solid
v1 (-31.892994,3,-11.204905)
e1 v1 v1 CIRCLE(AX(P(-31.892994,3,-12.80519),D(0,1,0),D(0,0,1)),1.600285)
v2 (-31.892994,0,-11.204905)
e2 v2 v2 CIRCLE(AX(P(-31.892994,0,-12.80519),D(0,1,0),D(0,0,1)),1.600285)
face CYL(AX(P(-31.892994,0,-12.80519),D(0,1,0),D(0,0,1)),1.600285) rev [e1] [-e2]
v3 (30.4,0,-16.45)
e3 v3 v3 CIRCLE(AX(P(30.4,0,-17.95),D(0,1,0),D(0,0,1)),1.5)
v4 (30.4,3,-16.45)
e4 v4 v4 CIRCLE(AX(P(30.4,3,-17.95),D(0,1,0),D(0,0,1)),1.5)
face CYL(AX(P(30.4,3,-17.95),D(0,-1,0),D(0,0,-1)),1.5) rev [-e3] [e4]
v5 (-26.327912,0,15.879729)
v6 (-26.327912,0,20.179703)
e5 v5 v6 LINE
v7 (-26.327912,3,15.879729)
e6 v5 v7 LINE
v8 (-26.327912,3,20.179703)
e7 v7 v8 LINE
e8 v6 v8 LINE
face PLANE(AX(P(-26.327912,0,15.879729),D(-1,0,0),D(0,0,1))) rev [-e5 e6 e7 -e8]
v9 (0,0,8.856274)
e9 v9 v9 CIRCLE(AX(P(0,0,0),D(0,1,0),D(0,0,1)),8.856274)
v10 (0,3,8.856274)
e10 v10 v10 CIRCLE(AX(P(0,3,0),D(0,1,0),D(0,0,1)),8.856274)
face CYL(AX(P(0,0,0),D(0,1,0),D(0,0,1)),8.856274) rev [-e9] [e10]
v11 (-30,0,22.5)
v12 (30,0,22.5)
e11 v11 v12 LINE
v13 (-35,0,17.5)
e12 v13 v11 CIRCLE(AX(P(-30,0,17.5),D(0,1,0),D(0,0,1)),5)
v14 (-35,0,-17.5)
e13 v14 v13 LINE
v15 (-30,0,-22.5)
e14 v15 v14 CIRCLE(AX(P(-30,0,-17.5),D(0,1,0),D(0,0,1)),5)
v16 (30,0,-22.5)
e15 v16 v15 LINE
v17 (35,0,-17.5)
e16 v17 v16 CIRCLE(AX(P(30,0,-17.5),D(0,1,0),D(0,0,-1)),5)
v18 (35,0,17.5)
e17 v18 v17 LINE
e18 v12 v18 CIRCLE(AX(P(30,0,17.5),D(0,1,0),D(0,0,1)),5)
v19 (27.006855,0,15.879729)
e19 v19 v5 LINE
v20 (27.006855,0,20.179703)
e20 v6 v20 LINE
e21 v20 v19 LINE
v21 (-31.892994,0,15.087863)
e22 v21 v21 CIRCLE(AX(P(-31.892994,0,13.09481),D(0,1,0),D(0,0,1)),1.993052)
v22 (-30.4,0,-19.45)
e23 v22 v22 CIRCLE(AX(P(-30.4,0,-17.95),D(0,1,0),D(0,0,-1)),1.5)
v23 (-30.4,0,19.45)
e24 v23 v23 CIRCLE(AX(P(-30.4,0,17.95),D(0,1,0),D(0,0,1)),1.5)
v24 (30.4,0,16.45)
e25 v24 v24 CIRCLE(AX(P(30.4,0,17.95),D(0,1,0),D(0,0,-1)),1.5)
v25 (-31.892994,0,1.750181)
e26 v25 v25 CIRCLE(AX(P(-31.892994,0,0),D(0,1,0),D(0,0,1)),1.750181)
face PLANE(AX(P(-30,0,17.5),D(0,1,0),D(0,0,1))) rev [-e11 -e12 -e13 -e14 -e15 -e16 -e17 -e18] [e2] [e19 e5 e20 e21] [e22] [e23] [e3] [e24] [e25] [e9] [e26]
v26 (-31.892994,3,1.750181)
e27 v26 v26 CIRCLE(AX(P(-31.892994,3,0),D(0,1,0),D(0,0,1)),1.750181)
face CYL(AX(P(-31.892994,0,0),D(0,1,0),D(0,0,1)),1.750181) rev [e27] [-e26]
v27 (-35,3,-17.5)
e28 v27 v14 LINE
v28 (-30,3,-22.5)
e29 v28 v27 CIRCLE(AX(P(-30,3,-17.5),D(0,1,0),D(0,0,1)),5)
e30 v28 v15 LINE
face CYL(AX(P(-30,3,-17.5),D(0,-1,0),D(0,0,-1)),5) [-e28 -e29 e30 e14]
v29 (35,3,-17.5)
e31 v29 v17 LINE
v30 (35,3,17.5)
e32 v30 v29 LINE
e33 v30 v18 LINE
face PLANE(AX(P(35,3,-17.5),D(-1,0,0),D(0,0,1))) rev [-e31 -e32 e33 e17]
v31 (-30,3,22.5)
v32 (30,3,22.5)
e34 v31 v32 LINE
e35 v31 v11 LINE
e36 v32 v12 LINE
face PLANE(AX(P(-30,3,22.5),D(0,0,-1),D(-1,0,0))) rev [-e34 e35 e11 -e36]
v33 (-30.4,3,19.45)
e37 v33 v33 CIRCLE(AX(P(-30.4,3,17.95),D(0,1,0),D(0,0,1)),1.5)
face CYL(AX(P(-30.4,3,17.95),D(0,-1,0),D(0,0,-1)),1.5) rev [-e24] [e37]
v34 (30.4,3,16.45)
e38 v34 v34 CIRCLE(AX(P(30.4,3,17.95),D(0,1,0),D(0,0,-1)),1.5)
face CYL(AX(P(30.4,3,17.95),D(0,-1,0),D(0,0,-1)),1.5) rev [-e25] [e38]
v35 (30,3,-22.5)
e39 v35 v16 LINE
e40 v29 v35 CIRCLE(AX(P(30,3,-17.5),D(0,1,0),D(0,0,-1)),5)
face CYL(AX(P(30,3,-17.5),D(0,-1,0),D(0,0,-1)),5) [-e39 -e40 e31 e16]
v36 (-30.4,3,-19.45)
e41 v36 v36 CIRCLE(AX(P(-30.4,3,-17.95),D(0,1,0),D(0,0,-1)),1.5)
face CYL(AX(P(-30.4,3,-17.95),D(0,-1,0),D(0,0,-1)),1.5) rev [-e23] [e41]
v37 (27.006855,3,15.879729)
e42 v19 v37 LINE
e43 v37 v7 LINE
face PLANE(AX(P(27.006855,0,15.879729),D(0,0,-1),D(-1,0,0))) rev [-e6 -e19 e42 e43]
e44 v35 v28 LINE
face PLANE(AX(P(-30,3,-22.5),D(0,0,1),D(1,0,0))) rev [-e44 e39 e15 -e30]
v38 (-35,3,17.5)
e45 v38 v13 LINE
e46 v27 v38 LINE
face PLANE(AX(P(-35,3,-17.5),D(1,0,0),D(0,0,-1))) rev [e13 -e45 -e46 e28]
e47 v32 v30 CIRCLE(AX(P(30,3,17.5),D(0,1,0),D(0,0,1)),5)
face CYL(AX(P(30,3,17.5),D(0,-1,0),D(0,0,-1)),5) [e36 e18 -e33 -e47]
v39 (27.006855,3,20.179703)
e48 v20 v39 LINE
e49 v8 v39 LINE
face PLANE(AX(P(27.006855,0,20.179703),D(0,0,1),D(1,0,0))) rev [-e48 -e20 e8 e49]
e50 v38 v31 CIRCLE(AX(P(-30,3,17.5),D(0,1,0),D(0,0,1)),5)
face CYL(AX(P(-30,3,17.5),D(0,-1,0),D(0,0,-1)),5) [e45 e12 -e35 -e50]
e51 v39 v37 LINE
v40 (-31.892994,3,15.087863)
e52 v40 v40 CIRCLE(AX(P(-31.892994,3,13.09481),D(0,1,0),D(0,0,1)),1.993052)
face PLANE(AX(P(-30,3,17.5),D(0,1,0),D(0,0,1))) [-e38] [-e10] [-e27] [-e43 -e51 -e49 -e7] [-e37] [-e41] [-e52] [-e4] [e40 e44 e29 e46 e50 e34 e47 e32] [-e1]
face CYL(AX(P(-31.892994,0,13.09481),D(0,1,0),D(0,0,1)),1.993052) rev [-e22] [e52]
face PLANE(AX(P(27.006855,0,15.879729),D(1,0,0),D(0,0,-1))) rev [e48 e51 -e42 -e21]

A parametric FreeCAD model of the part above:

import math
import FreeCAD as App
import Part
import Sketcher


def add_polygon(sketch, points):
    """Adds a closed chain of lines whose ends are joined by coincident constraints."""
    first, n = sketch.GeometryCount, len(points)
    for a, b in zip(points, points[1:] + points[:1]):
        sketch.addGeometry(Part.LineSegment(App.Vector(*a, 0), App.Vector(*b, 0)), False)
    for i in range(n):
        sketch.addConstraint(Sketcher.Constraint("Coincident", first + i, 2, first + (i + 1) % n, 1))

doc = App.newDocument("Part")
params = doc.addObject("Spreadsheet::Sheet", "Params")
for row, (alias, value) in enumerate([
    ("sketch1_diameter", "3 mm"),
    ("sketch1_radius", "5 mm"),
    ("sketch1_width", "60 mm"),
    ("sketch1_height", "35 mm"),
    ("pad1_length", "3 mm"),
], start=1):
    params.set(f"A{row}", alias)
    params.set(f"B{row}", "=" + value)
    params.setAlias(f"B{row}", alias)

body = doc.addObject("PartDesign::Body", "Body")

# Sketch on XZ plane
sketch1 = body.newObject("Sketcher::SketchObject", "Sketch")
sketch1.AttachmentSupport = (doc.getObject("XZ_Plane"), [""])
sketch1.MapMode = "FlatFace"
sketch1.addGeometry(Part.LineSegment(App.Vector(30, -22.5, 0), App.Vector(-30, -22.5, 0)), False)
sketch1.addGeometry(Part.ArcOfCircle(Part.Circle(App.Vector(-30, -17.5, 0), App.Vector(0, 0, 1), 5), math.radians(180), math.radians(270)), False)
sketch1.addGeometry(Part.LineSegment(App.Vector(-35, -17.5, 0), App.Vector(-35, 17.5, 0)), False)
sketch1.addGeometry(Part.ArcOfCircle(Part.Circle(App.Vector(-30, 17.5, 0), App.Vector(0, 0, 1), 5), math.radians(90), math.radians(180)), False)
sketch1.addGeometry(Part.LineSegment(App.Vector(-30, 22.5, 0), App.Vector(30, 22.5, 0)), False)
sketch1.addGeometry(Part.ArcOfCircle(Part.Circle(App.Vector(30, 17.5, 0), App.Vector(0, 0, 1), 5), math.radians(0), math.radians(90)), False)
sketch1.addGeometry(Part.LineSegment(App.Vector(35, 17.5, 0), App.Vector(35, -17.5, 0)), False)
sketch1.addGeometry(Part.ArcOfCircle(Part.Circle(App.Vector(30, -17.5, 0), App.Vector(0, 0, 1), 5), math.radians(-90), math.radians(0)), False)
sketch1.addGeometry(Part.Circle(App.Vector(30.4, 17.9, 0), App.Vector(0, 0, 1), 1.5), False)
sketch1.addGeometry(Part.Circle(App.Vector(-30.4, 17.9, 0), App.Vector(0, 0, 1), 1.5), False)
sketch1.addGeometry(Part.Circle(App.Vector(30.4, -17.9, 0), App.Vector(0, 0, 1), 1.5), False)
sketch1.addGeometry(Part.Circle(App.Vector(-30.4, -17.9, 0), App.Vector(0, 0, 1), 1.5), False)
sketch1.addConstraint(Sketcher.Constraint("Tangent", 0, 2, 1, 2))
sketch1.addConstraint(Sketcher.Constraint("Tangent", 1, 1, 2, 1))
sketch1.addConstraint(Sketcher.Constraint("Tangent", 2, 2, 3, 2))
sketch1.addConstraint(Sketcher.Constraint("Tangent", 3, 1, 4, 1))
sketch1.addConstraint(Sketcher.Constraint("Tangent", 4, 2, 5, 2))
sketch1.addConstraint(Sketcher.Constraint("Tangent", 5, 1, 6, 1))
sketch1.addConstraint(Sketcher.Constraint("Tangent", 6, 2, 7, 2))
sketch1.addConstraint(Sketcher.Constraint("Tangent", 7, 1, 0, 1))
sketch1.addConstraint(Sketcher.Constraint("Horizontal", 0))
sketch1.addConstraint(Sketcher.Constraint("Vertical", 2))
sketch1.addConstraint(Sketcher.Constraint("Horizontal", 4))
sketch1.addConstraint(Sketcher.Constraint("Vertical", 6))
sketch1.addConstraint(Sketcher.Constraint("Equal", 1, 3))
sketch1.addConstraint(Sketcher.Constraint("Equal", 3, 5))
sketch1.addConstraint(Sketcher.Constraint("Equal", 5, 7))
sketch1.addConstraint(Sketcher.Constraint("Equal", 8, 9))
sketch1.addConstraint(Sketcher.Constraint("Equal", 9, 10))
sketch1.addConstraint(Sketcher.Constraint("Equal", 10, 11))
sketch1.addConstraint(Sketcher.Constraint("Symmetric", 1, 3, 5, 3, -1, 1))
sketch1.addConstraint(Sketcher.Constraint("Symmetric", 9, 3, 10, 3, -1, 1))
sketch1.addConstraint(Sketcher.Constraint("Symmetric", 8, 3, 11, 3, -1, 1))
sketch1.addConstraint(Sketcher.Constraint("Symmetric", 8, 3, 9, 3, -2))
sketch1.addConstraint(Sketcher.Constraint("Diameter", 8, 3.0))
sketch1.addConstraint(Sketcher.Constraint("Radius", 1, 5.0))
sketch1.addConstraint(Sketcher.Constraint("DistanceX", 0, 2, 0, 1, 60.0))
sketch1.addConstraint(Sketcher.Constraint("DistanceY", 2, 1, 2, 2, 35.0))
sketch1.addConstraint(Sketcher.Constraint("DistanceX", -1, 1, 8, 3, 30.4))
sketch1.addConstraint(Sketcher.Constraint("DistanceY", 10, 3, 8, 3, 35.9))
sketch1.setExpression("Constraints[22]", "Params.sketch1_diameter")
sketch1.setExpression("Constraints[23]", "Params.sketch1_radius")
sketch1.setExpression("Constraints[24]", "Params.sketch1_width")
sketch1.setExpression("Constraints[25]", "Params.sketch1_height")
pad1 = body.newObject("PartDesign::Pad", "Pad")
pad1.Profile = sketch1
pad1.setExpression("Length", "Params.pad1_length")
pad1.Reversed = True

# Sketch on XZ plane
sketch2 = body.newObject("Sketcher::SketchObject", "Sketch001")
sketch2.AttachmentSupport = (doc.getObject("XZ_Plane"), [""])
sketch2.MapMode = "FlatFace"
sketch2.AttachmentOffset = App.Placement(App.Vector(0, 0, -3), App.Rotation())
sketch2.addGeometry(Part.Circle(App.Vector(0, 0, 0), App.Vector(0, 0, 1), 8.9), False)  # 0
sketch2.addGeometry(Part.Circle(App.Vector(-31.9, -12.8, 0), App.Vector(0, 0, 1), 1.6), False)  # 1
sketch2.addGeometry(Part.Circle(App.Vector(-31.9, 0, 0), App.Vector(0, 0, 1), 1.8), False)  # 2
sketch2.addGeometry(Part.Circle(App.Vector(-31.9, 13.1, 0), App.Vector(0, 0, 1), 2), False)  # 3
add_polygon(sketch2, [(-26.3, 15.9), (-26.3, 20.2), (27, 20.2), (27, 15.9)])  # lines 4-7
sketch2.addConstraint(Sketcher.Constraint("Vertical", 4))
sketch2.addConstraint(Sketcher.Constraint("Horizontal", 5))
sketch2.addConstraint(Sketcher.Constraint("Vertical", 6))
sketch2.addConstraint(Sketcher.Constraint("Horizontal", 7))
sketch2.addConstraint(Sketcher.Constraint("Coincident", 0, 3, -1, 1))
sketch2.addConstraint(Sketcher.Constraint("PointOnObject", 2, 3, -1))
sketch2.addConstraint(Sketcher.Constraint("Vertical", 1, 3, 2, 3))
sketch2.addConstraint(Sketcher.Constraint("Vertical", 2, 3, 3, 3))
sketch2.addConstraint(Sketcher.Constraint("DistanceY", 1, 3, 3, 3, 25.9))
sketch2.addConstraint(Sketcher.Constraint("Diameter", 0, 17.712548))
sketch2.addConstraint(Sketcher.Constraint("Diameter", 1, 3.200569))
sketch2.addConstraint(Sketcher.Constraint("Diameter", 2, 3.500362))
sketch2.addConstraint(Sketcher.Constraint("Diameter", 3, 3.986105))
sketch2.addConstraint(Sketcher.Constraint("DistanceX", 5, 1, 5, 2, 53.334767))
sketch2.addConstraint(Sketcher.Constraint("DistanceY", 4, 1, 4, 2, 4.299974))
sketch2.addConstraint(Sketcher.Constraint("DistanceY", 1, 3, -1, 1, 12.80519))
sketch2.addConstraint(Sketcher.Constraint("DistanceY", -1, 1, 6, 2, 15.879729))
sketch2.addConstraint(Sketcher.Constraint("DistanceX", 3, 3, 4, 2, 5.565082))
sketch2.addConstraint(Sketcher.Constraint("DistanceX", 1, 3, -1, 1, 31.892994))
pocket1 = body.newObject("PartDesign::Pocket", "Pocket")
pocket1.Profile = sketch2
pocket1.Type = "ThroughAll"
pocket1.Reversed = True

doc.recompute()
